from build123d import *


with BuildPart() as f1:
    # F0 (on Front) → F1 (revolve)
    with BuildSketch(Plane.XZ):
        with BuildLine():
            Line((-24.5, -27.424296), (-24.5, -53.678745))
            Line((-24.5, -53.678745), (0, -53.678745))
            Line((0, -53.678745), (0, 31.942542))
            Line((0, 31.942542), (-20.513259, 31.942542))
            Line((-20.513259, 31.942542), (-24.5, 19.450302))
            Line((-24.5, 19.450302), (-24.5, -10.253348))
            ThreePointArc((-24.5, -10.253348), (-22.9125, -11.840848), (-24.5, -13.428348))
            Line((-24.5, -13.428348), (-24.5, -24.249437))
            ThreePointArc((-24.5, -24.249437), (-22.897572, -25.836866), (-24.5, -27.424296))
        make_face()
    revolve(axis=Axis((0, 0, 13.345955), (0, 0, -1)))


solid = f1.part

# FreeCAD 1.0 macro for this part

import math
import FreeCAD as App
import Part
import Sketcher

V = App.Vector
Q = App.Units.Quantity

doc = App.newDocument("Part")
body = doc.addObject("PartDesign::Body", "Body")

sketch1 = doc.addObject("Sketcher::SketchObject", "Sketch")
body.addObject(sketch1)
sketch1.AttachmentSupport = (doc.XZ_Plane, [""])
sketch1.MapMode = "FlatFace"
sketch1.addGeometry([
    Part.LineSegment(V(-24.5, -27.4, 0), V(-24.5, -53.7, 0)),
    Part.LineSegment(V(-24.5, -53.7, 0), V(0, -53.7, 0)),
    Part.LineSegment(V(0, -53.7, 0), V(0, 31.9, 0)),
    Part.LineSegment(V(0, 31.9, 0), V(-20.5, 31.9, 0)),
    Part.LineSegment(V(-20.5, 31.9, 0), V(-24.5, 19.5, 0)),
    Part.LineSegment(V(-24.5, 19.5, 0), V(-24.5, -10.3, 0)),
    Part.ArcOfCircle(Part.Circle(V(-24.5, -11.8, 0), V(0, 0, 1), 1.6), math.radians(-90), math.radians(90)),
    Part.LineSegment(V(-24.5, -13.4, 0), V(-24.5, -24.2, 0)),
    Part.ArcOfCircle(Part.Circle(V(-24.5, -25.8, 0), V(0, 0, 1), 1.6), math.radians(-91), math.radians(91)),
], False)
sketch1.addConstraint([
    Sketcher.Constraint("Coincident", 0, 2, 1, 1),
    Sketcher.Constraint("Coincident", 1, 2, 2, 1),
    Sketcher.Constraint("Coincident", 2, 2, 3, 1),
    Sketcher.Constraint("Coincident", 3, 2, 4, 1),
    Sketcher.Constraint("Coincident", 4, 2, 5, 1),
    Sketcher.Constraint("Coincident", 5, 2, 6, 2),
    Sketcher.Constraint("Coincident", 6, 1, 7, 1),
    Sketcher.Constraint("Coincident", 7, 2, 8, 2),
    Sketcher.Constraint("Coincident", 8, 1, 0, 1),
    Sketcher.Constraint("Vertical", 0),
    Sketcher.Constraint("Horizontal", 1),
    Sketcher.Constraint("Vertical", 2),
    Sketcher.Constraint("Horizontal", 3),
    Sketcher.Constraint("Vertical", 5),
    Sketcher.Constraint("Vertical", 7),
    Sketcher.Constraint("Equal", 6, 8),
    Sketcher.Constraint("PointOnObject", 1, 2, -2),
    Sketcher.Constraint("Vertical", 6, 3, 0, 2),
    Sketcher.Constraint("Vertical", 0, 2, 4, 2),
    Sketcher.Constraint("Vertical", 5, 2, 6, 1),
    Sketcher.Constraint("Radius", 6, Q("0.0625 in")),
    Sketcher.Constraint("DistanceX", 1, 1, 1, 2, 24.5),
    Sketcher.Constraint("DistanceX", 3, 2, 3, 1, 20.513259),
    Sketcher.Constraint("DistanceY", 0, 2, 0, 1, 26.254449),
    Sketcher.Constraint("DistanceY", 5, 2, 5, 1, 29.70365),
    Sketcher.Constraint("DistanceY", 7, 2, 7, 1, 10.821089),
    Sketcher.Constraint("DistanceY", 2, 1, 2, 2, 85.621287),
    Sketcher.Constraint("DistanceX", 8, 3, -1, 1, 24.485072),
    Sketcher.Constraint("DistanceY", -1, 1, 2, 2, 31.942542),
])
revolution = doc.addObject("PartDesign::Revolution", "Revolution")
body.addObject(revolution)
revolution.Profile = sketch1
revolution.ReferenceAxis = (sketch1, ["V_Axis"])
revolution.Angle = 360

doc.recompute()
